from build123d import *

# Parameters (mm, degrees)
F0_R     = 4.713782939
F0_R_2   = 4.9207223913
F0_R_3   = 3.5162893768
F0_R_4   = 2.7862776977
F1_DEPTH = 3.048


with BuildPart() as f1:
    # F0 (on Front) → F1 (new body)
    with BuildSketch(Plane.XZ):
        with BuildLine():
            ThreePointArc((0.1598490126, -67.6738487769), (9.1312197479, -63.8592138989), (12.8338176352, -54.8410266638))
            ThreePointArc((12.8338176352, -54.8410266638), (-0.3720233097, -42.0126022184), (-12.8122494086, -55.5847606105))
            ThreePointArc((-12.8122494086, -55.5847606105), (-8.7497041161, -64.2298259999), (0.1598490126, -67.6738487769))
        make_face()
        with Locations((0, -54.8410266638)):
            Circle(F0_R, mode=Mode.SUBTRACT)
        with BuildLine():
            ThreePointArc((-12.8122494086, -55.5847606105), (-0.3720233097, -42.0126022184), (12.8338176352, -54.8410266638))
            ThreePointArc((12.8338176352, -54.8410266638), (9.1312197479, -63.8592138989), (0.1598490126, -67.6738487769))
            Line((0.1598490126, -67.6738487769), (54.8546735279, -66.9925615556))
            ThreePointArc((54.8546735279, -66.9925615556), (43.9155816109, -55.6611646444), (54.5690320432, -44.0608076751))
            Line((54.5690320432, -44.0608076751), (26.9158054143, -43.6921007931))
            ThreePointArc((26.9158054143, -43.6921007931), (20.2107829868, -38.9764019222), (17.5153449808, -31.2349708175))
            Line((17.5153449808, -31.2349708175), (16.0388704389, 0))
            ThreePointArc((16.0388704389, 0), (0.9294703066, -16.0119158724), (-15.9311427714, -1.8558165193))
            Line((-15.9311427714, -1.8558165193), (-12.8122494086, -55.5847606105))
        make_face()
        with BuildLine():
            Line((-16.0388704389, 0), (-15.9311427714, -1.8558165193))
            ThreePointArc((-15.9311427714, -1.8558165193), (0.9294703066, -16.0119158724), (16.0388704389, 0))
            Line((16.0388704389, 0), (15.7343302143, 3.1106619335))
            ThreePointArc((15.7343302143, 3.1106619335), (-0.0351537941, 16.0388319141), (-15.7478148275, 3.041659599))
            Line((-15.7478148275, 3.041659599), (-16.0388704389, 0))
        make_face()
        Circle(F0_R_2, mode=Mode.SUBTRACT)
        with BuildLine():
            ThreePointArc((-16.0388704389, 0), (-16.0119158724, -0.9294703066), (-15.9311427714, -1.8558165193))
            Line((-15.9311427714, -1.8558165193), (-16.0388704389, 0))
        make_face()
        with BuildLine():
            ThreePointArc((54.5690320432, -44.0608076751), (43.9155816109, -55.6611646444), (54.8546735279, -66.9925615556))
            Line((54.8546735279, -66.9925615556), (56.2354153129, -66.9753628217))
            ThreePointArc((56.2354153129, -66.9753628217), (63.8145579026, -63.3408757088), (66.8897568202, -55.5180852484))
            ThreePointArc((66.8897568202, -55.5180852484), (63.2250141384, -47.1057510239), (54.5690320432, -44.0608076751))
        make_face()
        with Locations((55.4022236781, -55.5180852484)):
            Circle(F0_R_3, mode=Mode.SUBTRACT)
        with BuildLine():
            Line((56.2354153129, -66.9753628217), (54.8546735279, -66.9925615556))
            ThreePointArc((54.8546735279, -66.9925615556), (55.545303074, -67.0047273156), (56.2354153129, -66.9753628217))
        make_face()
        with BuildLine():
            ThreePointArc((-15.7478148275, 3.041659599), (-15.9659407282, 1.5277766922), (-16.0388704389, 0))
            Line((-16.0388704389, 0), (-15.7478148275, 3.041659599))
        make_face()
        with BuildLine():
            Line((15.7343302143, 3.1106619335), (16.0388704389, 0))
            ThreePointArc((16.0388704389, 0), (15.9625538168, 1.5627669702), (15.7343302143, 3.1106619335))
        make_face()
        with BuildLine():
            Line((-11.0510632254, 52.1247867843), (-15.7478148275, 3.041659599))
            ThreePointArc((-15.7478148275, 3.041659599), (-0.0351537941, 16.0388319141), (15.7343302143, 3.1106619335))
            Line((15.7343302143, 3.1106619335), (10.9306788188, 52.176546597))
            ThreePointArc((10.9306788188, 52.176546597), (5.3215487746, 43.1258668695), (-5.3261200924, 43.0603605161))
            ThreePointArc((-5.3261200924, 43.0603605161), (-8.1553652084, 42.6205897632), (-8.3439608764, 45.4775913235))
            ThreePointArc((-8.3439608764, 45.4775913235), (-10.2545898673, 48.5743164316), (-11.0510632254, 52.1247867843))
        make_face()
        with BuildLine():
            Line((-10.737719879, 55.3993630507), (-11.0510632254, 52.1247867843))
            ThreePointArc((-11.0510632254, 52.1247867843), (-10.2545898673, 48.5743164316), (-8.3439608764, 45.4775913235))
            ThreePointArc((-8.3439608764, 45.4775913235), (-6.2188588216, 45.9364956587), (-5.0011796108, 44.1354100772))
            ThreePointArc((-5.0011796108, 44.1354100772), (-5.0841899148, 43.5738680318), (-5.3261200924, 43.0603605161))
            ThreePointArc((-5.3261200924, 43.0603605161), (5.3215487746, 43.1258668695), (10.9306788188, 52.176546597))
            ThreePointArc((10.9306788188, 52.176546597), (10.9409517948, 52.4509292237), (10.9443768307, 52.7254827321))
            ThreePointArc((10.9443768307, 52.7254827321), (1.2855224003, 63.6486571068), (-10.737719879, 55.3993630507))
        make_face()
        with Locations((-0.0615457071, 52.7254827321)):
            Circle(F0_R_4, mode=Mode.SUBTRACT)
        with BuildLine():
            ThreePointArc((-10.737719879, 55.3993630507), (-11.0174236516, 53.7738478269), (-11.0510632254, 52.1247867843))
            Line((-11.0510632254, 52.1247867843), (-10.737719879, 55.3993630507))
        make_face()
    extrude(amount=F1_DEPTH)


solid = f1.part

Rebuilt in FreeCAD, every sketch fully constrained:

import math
import FreeCAD as App
import Part
import Sketcher
from FreeCAD import Vector
Q = App.Units.Quantity

doc = App.newDocument("Part")
params = doc.addObject("Spreadsheet::Sheet", "Params")
for row, (alias, value) in enumerate([
    ("pad1_length", "0.12 in"),
], start=1):
    params.set(f"A{row}", alias)
    params.set(f"B{row}", "=" + value)
    params.setAlias(f"B{row}", alias)

body = doc.addObject("PartDesign::Body", "Body")

# Sketch on XZ plane
sketch1 = doc.addObject("Sketcher::SketchObject", "Sketch")
body.addObject(sketch1)
sketch1.AttachmentSupport = (doc.XZ_Plane, [""])
sketch1.MapMode = "FlatFace"
sketch1.addGeometry([
    Part.ArcOfCircle(Part.Circle(Vector(0, -54.841027, 0), Vector(0, 0, 1), 12.833818), math.radians(-176.677785), math.radians(-89.286346)),  # 0
    Part.LineSegment(Vector(0.159849, -67.673849, 0), Vector(54.854674, -66.992562, 0)),  # 1
    Part.ArcOfCircle(Part.Circle(Vector(55.402224, -55.518085, 0), Vector(0, 0, 1), 11.487533), math.radians(-92.732023), math.radians(-85.840681)),  # 2
    Part.ArcOfCircle(Part.Circle(Vector(55.402224, -55.518085, 0), Vector(0, 0, 1), 11.487533), math.radians(-85.840681), math.radians(0)),  # 3
    Part.ArcOfCircle(Part.Circle(Vector(55.402224, -55.518085, 0), Vector(0, 0, 1), 11.487533), math.radians(0), math.radians(94.159319)),  # 4
    Part.LineSegment(Vector(54.569032, -44.060808, 0), Vector(26.915805, -43.692101, 0)),  # 5
    Part.ArcOfCircle(Part.Circle(Vector(30.888751, -30.918542, 0), Vector(0, 0, 1), 13.377149), math.radians(-178.644573), math.radians(-107.277201)),  # 6
    Part.LineSegment(Vector(17.515345, -31.234971, 0), Vector(16.03887, 0, 0)),  # 7
    Part.ArcOfCircle(Part.Circle(Vector(0, 0, 0), Vector(0, 0, 1), 16.03887), math.radians(0), math.radians(11.183112)),  # 8
    Part.LineSegment(Vector(15.73433, 3.110662, 0), Vector(10.930679, 52.176547, 0)),  # 9
    Part.ArcOfCircle(Part.Circle(Vector(-0.061546, 52.725483, 0), Vector(0, 0, 1), 11.005923), math.radians(-2.858895), math.radians(0)),  # 10
    Part.ArcOfCircle(Part.Circle(Vector(-0.061546, 52.725483, 0), Vector(0, 0, 1), 11.005923), math.radians(0), math.radians(165.939329)),  # 11
    Part.ArcOfCircle(Part.Circle(Vector(-0.061546, 52.725483, 0), Vector(0, 0, 1), 11.005923), math.radians(165.939329), math.radians(183.12872)),  # 12
    Part.LineSegment(Vector(-11.051063, 52.124787, 0), Vector(-15.747815, 3.04166, 0)),  # 13
    Part.ArcOfCircle(Part.Circle(Vector(0, 0, 0), Vector(0, 0, 1), 16.03887), math.radians(169.068049), math.radians(180)),  # 14
    Part.ArcOfCircle(Part.Circle(Vector(0, 0, 0), Vector(0, 0, 1), 16.03887), math.radians(180), math.radians(186.64443)),  # 15
    Part.LineSegment(Vector(-15.931143, -1.855817, 0), Vector(-12.812249, -55.584761, 0)),  # 16
    Part.Circle(Vector(0, -54.841027, 0), Vector(0, 0, 1), 4.713783),  # 17
    Part.Circle(Vector(55.402224, -55.518085, 0), Vector(0, 0, 1), 3.516289),  # 18
    Part.Circle(Vector(0, 0, 0), Vector(0, 0, 1), 4.920722),  # 19
    Part.ArcOfCircle(Part.Circle(Vector(-6.942024, 44.13541, 0), Vector(0, 0, 1), 1.940844), math.radians(0), math.radians(326.364457)),  # 20
    Part.ArcOfCircle(Part.Circle(Vector(-6.942024, 44.13541, 0), Vector(0, 0, 1), 1.940844), math.radians(-33.635543), math.radians(0)),  # 21
    Part.Circle(Vector(-0.061546, 52.725483, 0), Vector(0, 0, 1), 2.786278),  # 22
], False)
sketch1.addConstraint([
    Sketcher.Constraint("Coincident", 0, 2, 1, 1),
    Sketcher.Constraint("Coincident", 1, 2, 2, 1),
    Sketcher.Constraint("Coincident", 2, 2, 3, 1),
    Sketcher.Constraint("Coincident", 3, 2, 4, 1),
    Sketcher.Constraint("Coincident", 4, 2, 5, 1),
    Sketcher.Constraint("Coincident", 5, 2, 6, 2),
    Sketcher.Constraint("Coincident", 6, 1, 7, 1),
    Sketcher.Constraint("Coincident", 7, 2, 8, 1),
    Sketcher.Constraint("Coincident", 8, 2, 9, 1),
    Sketcher.Constraint("Coincident", 9, 2, 10, 1),
    Sketcher.Constraint("Coincident", 10, 2, 11, 1),
    Sketcher.Constraint("Coincident", 11, 2, 12, 1),
    Sketcher.Constraint("Coincident", 12, 2, 13, 1),
    Sketcher.Constraint("Coincident", 13, 2, 14, 1),
    Sketcher.Constraint("Coincident", 14, 2, 15, 1),
    Sketcher.Constraint("Coincident", 15, 2, 16, 1),
    Sketcher.Constraint("Coincident", 16, 2, 0, 1),
    Sketcher.Constraint("Coincident", 20, 1, 21, 2),
    Sketcher.Constraint("Coincident", 21, 1, 20, 2),
    Sketcher.Constraint("Coincident", 8, 3, -1, 1),
    Sketcher.Constraint("Coincident", 14, 3, -1, 1),
    Sketcher.Constraint("Coincident", 15, 3, -1, 1),
    Sketcher.Constraint("Coincident", 19, 3, -1, 1),
    Sketcher.Constraint("Coincident", 3, 3, 2, 3),
    Sketcher.Constraint("Coincident", 4, 3, 2, 3),
    Sketcher.Constraint("Coincident", 11, 3, 10, 3),
    Sketcher.Constraint("Coincident", 12, 3, 10, 3),
    Sketcher.Constraint("Coincident", 17, 3, 0, 3),
    Sketcher.Constraint("Coincident", 18, 3, 2, 3),
    Sketcher.Constraint("Coincident", 22, 3, 10, 3),
    Sketcher.Constraint("PointOnObject", 0, 3, -2),
    Sketcher.Constraint("PointOnObject", 7, 2, -1),
    Sketcher.Constraint("PointOnObject", 14, 2, -1),
    Sketcher.Constraint("Diameter", 18, Q("7.032579 mm")),
    Sketcher.Constraint("Radius", 6, Q("13.377149 mm")),
    Sketcher.Constraint("Radius", 8, Q("16.03887 mm")),
    Sketcher.Constraint("Radius", 14, Q("16.03887 mm")),
    Sketcher.Constraint("Diameter", 17, Q("9.427566 mm")),
    Sketcher.Constraint("Diameter", 19, Q("9.841445 mm")),
    Sketcher.Constraint("Diameter", 22, Q("5.572555 mm")),
    Sketcher.Constraint("Radius", 0, Q("12.833818 mm")),
    Sketcher.Constraint("Radius", 2, Q("11.487533 mm")),
    Sketcher.Constraint("Radius", 10, Q("11.005923 mm")),
    Sketcher.Constraint("Radius", 20, Q("1.940844 mm")),
    Sketcher.Constraint("Radius", 21, Q("1.940844 mm")),
    Sketcher.Constraint("DistanceY", 5, 2, -1, 1, Q("43.692101 mm")),
    Sketcher.Constraint("DistanceX", 0, 2, 6, 3, Q("30.728902 mm")),
    Sketcher.Constraint("DistanceY", 1, 2, 2, 2, Q("0.017199 mm")),
    Sketcher.Constraint("DistanceX", 9, 2, 10, 2, Q("0.013698 mm")),
    Sketcher.Constraint("DistanceX", 16, 2, 0, 2, Q("12.972098 mm")),
    Sketcher.Constraint("Distance", 13, Q("49.307331 mm")),
    Sketcher.Constraint("Distance", 16, Q("53.819392 mm")),
    Sketcher.Constraint("DistanceX", -1, 1, 6, 3, Q("30.888751 mm")),
    Sketcher.Constraint("DistanceY", 6, 3, -1, 1, Q("30.918542 mm")),
    Sketcher.Constraint("DistanceY", -1, 1, 20, 3, Q("44.13541 mm")),
    Sketcher.Constraint("DistanceY", 0, 2, -1, 1, Q("67.673849 mm")),
    Sketcher.Constraint("DistanceY", 1, 2, -1, 1, Q("66.992562 mm")),
    Sketcher.Constraint("DistanceY", 6, 1, -1, 1, Q("31.234971 mm")),
    Sketcher.Constraint("DistanceX", -1, 1, 8, 2, Q("15.73433 mm")),
    Sketcher.Constraint("DistanceX", -1, 1, 9, 2, Q("10.930679 mm")),
    Sketcher.Constraint("DistanceX", 11, 2, -1, 1, Q("10.73772 mm")),
    Sketcher.Constraint("DistanceY", -1, 1, 13, 2, Q("3.04166 mm")),
    Sketcher.Constraint("DistanceX", 20, 1, -1, 1, Q("5.00118 mm")),
    Sketcher.Constraint("DistanceY", -1, 1, 20, 1, Q("44.13541 mm")),
    Sketcher.Constraint("DistanceX", 21, 1, -1, 1, Q("5.32612 mm")),
    Sketcher.Constraint("DistanceY", 2, 3, 0, 3, Q("0.677059 mm")),
    Sketcher.Constraint("DistanceY", 0, 3, 10, 3, Q("107.566509 mm")),
    Sketcher.Constraint("DistanceX", 10, 3, 3, 3, Q("55.463769 mm")),
    Sketcher.Constraint("DistanceX", 4, 2, 3, 3, Q("0.833192 mm")),
    Sketcher.Constraint("DistanceY", 3, 2, -1, 1, Q("55.518085 mm")),
    Sketcher.Constraint("DistanceY", -1, 1, 10, 2, Q("52.725483 mm")),
])
pad1 = doc.addObject("PartDesign::Pad", "Pad")
body.addObject(pad1)
pad1.Profile = sketch1
pad1.setExpression("Length", "Params.pad1_length")

doc.recompute()
